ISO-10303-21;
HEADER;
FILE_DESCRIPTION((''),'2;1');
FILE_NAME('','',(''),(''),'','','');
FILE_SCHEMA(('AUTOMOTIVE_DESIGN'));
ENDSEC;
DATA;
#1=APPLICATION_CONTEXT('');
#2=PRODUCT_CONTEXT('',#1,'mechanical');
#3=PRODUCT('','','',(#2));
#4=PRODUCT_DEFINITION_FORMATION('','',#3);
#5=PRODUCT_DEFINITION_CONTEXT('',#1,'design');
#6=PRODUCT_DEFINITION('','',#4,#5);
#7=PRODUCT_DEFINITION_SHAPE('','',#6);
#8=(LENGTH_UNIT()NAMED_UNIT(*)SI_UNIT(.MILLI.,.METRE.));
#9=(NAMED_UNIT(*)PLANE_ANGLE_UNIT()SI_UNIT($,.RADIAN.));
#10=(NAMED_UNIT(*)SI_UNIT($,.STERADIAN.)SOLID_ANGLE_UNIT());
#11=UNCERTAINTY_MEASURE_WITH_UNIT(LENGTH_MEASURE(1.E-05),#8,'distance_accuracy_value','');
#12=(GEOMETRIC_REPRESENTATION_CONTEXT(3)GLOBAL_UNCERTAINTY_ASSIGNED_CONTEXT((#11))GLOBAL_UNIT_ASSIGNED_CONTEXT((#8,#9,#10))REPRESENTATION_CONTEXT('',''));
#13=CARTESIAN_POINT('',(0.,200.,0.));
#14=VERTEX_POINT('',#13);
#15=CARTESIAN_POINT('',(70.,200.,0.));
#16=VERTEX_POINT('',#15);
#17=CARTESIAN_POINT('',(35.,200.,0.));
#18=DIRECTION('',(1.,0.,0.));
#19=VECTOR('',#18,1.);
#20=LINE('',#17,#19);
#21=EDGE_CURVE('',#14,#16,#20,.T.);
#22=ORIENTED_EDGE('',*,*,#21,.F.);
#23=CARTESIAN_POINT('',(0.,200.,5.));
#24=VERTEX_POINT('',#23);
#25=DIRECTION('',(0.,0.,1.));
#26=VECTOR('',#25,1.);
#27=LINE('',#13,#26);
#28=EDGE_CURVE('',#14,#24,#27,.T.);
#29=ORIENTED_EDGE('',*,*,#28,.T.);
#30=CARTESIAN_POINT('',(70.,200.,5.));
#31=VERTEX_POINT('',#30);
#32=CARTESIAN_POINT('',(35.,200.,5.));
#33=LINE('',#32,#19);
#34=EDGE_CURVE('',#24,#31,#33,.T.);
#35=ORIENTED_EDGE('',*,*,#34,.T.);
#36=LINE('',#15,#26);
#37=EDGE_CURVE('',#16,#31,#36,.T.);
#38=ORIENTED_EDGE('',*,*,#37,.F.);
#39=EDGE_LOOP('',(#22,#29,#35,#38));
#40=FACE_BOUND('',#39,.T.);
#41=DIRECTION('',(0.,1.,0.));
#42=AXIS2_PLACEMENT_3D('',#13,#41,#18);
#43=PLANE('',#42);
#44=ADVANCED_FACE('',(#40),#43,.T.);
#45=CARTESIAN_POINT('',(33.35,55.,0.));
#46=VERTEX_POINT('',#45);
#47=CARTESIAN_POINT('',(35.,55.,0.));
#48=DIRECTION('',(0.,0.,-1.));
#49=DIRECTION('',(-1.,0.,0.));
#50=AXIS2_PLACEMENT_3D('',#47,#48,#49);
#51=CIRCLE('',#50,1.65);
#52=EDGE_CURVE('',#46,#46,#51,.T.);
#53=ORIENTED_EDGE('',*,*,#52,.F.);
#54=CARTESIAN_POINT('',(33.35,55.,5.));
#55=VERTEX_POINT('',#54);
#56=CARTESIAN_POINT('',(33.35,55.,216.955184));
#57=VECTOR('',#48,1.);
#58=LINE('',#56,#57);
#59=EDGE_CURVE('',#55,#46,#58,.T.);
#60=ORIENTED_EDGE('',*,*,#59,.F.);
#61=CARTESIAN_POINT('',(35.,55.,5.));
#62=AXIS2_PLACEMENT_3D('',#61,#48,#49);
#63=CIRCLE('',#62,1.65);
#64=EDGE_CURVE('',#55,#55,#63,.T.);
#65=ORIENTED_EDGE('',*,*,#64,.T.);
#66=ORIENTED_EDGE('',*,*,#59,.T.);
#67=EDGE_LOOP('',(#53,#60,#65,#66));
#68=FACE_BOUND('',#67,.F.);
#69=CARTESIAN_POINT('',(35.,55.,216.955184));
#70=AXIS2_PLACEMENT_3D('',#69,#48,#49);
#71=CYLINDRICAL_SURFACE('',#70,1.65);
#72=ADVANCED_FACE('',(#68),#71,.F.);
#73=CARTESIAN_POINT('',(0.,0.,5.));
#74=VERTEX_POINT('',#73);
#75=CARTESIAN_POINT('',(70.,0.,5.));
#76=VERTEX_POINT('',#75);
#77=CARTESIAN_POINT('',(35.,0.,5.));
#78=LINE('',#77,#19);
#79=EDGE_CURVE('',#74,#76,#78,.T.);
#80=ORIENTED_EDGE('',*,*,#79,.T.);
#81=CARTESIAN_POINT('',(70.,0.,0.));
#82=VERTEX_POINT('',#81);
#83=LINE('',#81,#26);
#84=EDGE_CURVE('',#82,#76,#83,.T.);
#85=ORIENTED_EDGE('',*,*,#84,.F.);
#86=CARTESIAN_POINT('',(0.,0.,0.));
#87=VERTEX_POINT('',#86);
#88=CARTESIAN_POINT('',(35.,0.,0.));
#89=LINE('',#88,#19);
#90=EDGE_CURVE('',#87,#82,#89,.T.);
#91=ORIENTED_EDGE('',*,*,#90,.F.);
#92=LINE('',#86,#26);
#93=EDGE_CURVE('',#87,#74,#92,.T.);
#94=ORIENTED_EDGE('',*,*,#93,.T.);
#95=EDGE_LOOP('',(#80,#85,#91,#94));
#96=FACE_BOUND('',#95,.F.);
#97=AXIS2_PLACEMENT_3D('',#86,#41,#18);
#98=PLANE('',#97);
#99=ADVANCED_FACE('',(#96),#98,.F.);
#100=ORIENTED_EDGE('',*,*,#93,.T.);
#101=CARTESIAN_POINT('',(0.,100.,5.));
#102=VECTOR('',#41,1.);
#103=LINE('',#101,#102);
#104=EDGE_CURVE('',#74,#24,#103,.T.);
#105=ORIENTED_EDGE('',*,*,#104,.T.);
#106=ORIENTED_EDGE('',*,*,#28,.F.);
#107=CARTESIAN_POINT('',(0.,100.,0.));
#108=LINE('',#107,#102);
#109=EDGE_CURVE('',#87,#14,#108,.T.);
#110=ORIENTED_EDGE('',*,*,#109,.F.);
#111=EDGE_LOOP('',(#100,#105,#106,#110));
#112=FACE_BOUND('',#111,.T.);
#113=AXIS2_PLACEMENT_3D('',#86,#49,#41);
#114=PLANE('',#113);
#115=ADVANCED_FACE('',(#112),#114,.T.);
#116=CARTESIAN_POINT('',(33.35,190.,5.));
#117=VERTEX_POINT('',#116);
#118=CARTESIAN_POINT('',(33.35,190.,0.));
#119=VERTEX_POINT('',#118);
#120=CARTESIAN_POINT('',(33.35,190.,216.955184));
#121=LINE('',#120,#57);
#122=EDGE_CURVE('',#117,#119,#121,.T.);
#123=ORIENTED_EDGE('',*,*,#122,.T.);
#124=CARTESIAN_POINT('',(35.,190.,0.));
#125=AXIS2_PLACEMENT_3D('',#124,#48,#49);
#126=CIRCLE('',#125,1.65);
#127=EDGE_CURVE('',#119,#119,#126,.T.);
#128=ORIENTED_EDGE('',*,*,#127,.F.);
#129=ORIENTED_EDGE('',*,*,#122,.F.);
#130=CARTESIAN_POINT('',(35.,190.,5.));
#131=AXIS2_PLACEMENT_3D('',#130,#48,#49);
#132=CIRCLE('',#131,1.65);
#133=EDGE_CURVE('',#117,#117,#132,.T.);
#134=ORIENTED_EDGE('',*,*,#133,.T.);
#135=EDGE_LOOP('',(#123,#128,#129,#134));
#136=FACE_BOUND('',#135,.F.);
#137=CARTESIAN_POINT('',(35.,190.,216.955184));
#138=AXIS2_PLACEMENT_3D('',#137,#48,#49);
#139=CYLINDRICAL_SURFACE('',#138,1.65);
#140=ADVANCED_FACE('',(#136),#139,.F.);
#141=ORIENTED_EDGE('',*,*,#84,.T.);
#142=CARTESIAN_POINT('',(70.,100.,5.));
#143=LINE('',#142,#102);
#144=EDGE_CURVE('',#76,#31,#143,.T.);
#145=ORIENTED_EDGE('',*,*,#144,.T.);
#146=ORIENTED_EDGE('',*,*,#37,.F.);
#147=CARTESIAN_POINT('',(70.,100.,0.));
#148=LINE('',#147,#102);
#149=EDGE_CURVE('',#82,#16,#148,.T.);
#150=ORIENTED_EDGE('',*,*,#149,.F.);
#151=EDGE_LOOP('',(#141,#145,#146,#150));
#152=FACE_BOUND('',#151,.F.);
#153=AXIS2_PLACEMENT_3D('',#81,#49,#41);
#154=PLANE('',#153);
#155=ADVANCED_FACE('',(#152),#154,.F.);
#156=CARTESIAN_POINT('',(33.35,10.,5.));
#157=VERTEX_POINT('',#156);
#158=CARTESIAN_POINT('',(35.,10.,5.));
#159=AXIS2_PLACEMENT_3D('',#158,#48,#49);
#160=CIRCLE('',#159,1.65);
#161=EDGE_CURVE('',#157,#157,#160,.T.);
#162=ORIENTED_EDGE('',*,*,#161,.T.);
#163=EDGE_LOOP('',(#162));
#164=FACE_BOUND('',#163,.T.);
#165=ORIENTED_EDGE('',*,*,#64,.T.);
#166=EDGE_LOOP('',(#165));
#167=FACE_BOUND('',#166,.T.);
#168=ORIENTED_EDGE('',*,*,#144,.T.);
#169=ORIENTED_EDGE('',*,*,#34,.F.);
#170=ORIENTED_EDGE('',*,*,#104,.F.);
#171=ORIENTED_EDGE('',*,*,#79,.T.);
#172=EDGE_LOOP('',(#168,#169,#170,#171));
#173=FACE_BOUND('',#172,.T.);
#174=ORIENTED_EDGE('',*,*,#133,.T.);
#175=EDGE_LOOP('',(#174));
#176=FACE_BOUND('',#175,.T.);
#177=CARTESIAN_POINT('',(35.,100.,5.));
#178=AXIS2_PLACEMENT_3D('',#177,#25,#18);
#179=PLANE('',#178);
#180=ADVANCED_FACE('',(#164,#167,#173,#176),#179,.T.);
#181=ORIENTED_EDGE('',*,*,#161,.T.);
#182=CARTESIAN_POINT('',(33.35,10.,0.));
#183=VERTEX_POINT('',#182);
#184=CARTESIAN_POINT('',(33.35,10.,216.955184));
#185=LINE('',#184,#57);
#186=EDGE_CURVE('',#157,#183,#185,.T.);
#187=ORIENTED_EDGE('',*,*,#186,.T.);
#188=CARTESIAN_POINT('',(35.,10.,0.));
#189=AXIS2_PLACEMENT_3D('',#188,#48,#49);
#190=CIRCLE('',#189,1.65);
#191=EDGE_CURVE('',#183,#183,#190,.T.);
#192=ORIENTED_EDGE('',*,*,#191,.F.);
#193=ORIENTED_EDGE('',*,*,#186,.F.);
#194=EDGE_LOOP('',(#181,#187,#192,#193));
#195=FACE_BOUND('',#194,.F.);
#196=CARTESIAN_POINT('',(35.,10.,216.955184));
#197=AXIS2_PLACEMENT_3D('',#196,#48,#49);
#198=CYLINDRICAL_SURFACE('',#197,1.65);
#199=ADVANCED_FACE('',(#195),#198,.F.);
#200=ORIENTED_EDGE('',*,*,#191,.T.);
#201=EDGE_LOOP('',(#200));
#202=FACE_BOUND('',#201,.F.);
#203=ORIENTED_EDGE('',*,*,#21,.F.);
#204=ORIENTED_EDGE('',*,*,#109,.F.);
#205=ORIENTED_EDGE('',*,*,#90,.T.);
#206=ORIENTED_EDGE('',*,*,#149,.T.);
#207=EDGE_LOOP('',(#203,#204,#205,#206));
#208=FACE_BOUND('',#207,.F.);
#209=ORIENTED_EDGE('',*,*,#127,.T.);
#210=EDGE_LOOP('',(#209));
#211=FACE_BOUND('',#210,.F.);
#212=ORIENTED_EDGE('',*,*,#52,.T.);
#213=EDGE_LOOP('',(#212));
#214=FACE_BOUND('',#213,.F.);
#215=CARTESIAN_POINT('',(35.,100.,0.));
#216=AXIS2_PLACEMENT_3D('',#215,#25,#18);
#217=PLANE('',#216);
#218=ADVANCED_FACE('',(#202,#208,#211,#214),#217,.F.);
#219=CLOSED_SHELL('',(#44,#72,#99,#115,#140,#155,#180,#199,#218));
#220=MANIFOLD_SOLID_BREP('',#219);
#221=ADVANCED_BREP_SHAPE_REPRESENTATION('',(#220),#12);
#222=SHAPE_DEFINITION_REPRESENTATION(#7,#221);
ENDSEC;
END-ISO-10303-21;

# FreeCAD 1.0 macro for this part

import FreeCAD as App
import Part
import Sketcher
from FreeCAD import Vector
Q = App.Units.Quantity

doc = App.newDocument("Part")
body = doc.addObject("PartDesign::Body", "Body")

sketch1 = doc.addObject("Sketcher::SketchObject", "Sketch")
body.addObject(sketch1)
sketch1.AttachmentSupport = (doc.XY_Plane, [""])
sketch1.MapMode = "FlatFace"
sketch1.addGeometry([
    Part.LineSegment(Vector(0, 200, 0), Vector(0, 0, 0)),
    Part.LineSegment(Vector(0, 0, 0), Vector(70, 0, 0)),
    Part.LineSegment(Vector(70, 0, 0), Vector(70, 200, 0)),
    Part.LineSegment(Vector(70, 200, 0), Vector(0, 200, 0)),
], False)
sketch1.addConstraint([
    Sketcher.Constraint("Coincident", 0, 2, 1, 1),
    Sketcher.Constraint("Coincident", 1, 2, 2, 1),
    Sketcher.Constraint("Coincident", 2, 2, 3, 1),
    Sketcher.Constraint("Coincident", 3, 2, 0, 1),
    Sketcher.Constraint("Vertical", 0),
    Sketcher.Constraint("Horizontal", 1),
    Sketcher.Constraint("Vertical", 2),
    Sketcher.Constraint("Horizontal", 3),
    Sketcher.Constraint("Coincident", 0, 2, -1, 1),
    Sketcher.Constraint("DistanceX", 1, 1, 1, 2, Q("70 mm")),
    Sketcher.Constraint("DistanceY", 0, 2, 0, 1, Q("200 mm")),
])
pad1 = doc.addObject("PartDesign::Pad", "Pad")
body.addObject(pad1)
pad1.Profile = sketch1
pad1.Length = 5

sketch2 = doc.addObject("Sketcher::SketchObject", "Sketch001")
body.addObject(sketch2)
sketch2.AttachmentSupport = (doc.XY_Plane, [""])
sketch2.MapMode = "FlatFace"
sketch2.AttachmentOffset = App.Placement(Vector(0, 0, 5), App.Rotation())
sketch2.addGeometry([
    Part.Circle(Vector(35, 190, 0), Vector(0, 0, 1), 1.6),
    Part.Circle(Vector(35, 55, 0), Vector(0, 0, 1), 1.6),
    Part.Circle(Vector(35, 10, 0), Vector(0, 0, 1), 1.6),
], False)
sketch2.addConstraint([
    Sketcher.Constraint("Equal", 0, 1),
    Sketcher.Constraint("Equal", 1, 2),
    Sketcher.Constraint("Vertical", 0, 3, 1, 3),
    Sketcher.Constraint("Vertical", 1, 3, 2, 3),
    Sketcher.Constraint("Diameter", 0, Q("3.3 mm")),
    Sketcher.Constraint("DistanceX", -1, 1, 0, 3, Q("35 mm")),
    Sketcher.Constraint("DistanceY", -1, 1, 0, 3, Q("190 mm")),
    Sketcher.Constraint("DistanceY", -1, 1, 1, 3, Q("55 mm")),
    Sketcher.Constraint("DistanceY", -1, 1, 2, 3, Q("10 mm")),
])
doc.recompute()
hole = doc.addObject("PartDesign::Hole", "Hole")
body.addObject(hole)
hole.Profile = sketch2
hole.ThreadType = "None"
hole.Diameter = 3.3
hole.DepthType = "ThroughAll"

doc.recompute()
